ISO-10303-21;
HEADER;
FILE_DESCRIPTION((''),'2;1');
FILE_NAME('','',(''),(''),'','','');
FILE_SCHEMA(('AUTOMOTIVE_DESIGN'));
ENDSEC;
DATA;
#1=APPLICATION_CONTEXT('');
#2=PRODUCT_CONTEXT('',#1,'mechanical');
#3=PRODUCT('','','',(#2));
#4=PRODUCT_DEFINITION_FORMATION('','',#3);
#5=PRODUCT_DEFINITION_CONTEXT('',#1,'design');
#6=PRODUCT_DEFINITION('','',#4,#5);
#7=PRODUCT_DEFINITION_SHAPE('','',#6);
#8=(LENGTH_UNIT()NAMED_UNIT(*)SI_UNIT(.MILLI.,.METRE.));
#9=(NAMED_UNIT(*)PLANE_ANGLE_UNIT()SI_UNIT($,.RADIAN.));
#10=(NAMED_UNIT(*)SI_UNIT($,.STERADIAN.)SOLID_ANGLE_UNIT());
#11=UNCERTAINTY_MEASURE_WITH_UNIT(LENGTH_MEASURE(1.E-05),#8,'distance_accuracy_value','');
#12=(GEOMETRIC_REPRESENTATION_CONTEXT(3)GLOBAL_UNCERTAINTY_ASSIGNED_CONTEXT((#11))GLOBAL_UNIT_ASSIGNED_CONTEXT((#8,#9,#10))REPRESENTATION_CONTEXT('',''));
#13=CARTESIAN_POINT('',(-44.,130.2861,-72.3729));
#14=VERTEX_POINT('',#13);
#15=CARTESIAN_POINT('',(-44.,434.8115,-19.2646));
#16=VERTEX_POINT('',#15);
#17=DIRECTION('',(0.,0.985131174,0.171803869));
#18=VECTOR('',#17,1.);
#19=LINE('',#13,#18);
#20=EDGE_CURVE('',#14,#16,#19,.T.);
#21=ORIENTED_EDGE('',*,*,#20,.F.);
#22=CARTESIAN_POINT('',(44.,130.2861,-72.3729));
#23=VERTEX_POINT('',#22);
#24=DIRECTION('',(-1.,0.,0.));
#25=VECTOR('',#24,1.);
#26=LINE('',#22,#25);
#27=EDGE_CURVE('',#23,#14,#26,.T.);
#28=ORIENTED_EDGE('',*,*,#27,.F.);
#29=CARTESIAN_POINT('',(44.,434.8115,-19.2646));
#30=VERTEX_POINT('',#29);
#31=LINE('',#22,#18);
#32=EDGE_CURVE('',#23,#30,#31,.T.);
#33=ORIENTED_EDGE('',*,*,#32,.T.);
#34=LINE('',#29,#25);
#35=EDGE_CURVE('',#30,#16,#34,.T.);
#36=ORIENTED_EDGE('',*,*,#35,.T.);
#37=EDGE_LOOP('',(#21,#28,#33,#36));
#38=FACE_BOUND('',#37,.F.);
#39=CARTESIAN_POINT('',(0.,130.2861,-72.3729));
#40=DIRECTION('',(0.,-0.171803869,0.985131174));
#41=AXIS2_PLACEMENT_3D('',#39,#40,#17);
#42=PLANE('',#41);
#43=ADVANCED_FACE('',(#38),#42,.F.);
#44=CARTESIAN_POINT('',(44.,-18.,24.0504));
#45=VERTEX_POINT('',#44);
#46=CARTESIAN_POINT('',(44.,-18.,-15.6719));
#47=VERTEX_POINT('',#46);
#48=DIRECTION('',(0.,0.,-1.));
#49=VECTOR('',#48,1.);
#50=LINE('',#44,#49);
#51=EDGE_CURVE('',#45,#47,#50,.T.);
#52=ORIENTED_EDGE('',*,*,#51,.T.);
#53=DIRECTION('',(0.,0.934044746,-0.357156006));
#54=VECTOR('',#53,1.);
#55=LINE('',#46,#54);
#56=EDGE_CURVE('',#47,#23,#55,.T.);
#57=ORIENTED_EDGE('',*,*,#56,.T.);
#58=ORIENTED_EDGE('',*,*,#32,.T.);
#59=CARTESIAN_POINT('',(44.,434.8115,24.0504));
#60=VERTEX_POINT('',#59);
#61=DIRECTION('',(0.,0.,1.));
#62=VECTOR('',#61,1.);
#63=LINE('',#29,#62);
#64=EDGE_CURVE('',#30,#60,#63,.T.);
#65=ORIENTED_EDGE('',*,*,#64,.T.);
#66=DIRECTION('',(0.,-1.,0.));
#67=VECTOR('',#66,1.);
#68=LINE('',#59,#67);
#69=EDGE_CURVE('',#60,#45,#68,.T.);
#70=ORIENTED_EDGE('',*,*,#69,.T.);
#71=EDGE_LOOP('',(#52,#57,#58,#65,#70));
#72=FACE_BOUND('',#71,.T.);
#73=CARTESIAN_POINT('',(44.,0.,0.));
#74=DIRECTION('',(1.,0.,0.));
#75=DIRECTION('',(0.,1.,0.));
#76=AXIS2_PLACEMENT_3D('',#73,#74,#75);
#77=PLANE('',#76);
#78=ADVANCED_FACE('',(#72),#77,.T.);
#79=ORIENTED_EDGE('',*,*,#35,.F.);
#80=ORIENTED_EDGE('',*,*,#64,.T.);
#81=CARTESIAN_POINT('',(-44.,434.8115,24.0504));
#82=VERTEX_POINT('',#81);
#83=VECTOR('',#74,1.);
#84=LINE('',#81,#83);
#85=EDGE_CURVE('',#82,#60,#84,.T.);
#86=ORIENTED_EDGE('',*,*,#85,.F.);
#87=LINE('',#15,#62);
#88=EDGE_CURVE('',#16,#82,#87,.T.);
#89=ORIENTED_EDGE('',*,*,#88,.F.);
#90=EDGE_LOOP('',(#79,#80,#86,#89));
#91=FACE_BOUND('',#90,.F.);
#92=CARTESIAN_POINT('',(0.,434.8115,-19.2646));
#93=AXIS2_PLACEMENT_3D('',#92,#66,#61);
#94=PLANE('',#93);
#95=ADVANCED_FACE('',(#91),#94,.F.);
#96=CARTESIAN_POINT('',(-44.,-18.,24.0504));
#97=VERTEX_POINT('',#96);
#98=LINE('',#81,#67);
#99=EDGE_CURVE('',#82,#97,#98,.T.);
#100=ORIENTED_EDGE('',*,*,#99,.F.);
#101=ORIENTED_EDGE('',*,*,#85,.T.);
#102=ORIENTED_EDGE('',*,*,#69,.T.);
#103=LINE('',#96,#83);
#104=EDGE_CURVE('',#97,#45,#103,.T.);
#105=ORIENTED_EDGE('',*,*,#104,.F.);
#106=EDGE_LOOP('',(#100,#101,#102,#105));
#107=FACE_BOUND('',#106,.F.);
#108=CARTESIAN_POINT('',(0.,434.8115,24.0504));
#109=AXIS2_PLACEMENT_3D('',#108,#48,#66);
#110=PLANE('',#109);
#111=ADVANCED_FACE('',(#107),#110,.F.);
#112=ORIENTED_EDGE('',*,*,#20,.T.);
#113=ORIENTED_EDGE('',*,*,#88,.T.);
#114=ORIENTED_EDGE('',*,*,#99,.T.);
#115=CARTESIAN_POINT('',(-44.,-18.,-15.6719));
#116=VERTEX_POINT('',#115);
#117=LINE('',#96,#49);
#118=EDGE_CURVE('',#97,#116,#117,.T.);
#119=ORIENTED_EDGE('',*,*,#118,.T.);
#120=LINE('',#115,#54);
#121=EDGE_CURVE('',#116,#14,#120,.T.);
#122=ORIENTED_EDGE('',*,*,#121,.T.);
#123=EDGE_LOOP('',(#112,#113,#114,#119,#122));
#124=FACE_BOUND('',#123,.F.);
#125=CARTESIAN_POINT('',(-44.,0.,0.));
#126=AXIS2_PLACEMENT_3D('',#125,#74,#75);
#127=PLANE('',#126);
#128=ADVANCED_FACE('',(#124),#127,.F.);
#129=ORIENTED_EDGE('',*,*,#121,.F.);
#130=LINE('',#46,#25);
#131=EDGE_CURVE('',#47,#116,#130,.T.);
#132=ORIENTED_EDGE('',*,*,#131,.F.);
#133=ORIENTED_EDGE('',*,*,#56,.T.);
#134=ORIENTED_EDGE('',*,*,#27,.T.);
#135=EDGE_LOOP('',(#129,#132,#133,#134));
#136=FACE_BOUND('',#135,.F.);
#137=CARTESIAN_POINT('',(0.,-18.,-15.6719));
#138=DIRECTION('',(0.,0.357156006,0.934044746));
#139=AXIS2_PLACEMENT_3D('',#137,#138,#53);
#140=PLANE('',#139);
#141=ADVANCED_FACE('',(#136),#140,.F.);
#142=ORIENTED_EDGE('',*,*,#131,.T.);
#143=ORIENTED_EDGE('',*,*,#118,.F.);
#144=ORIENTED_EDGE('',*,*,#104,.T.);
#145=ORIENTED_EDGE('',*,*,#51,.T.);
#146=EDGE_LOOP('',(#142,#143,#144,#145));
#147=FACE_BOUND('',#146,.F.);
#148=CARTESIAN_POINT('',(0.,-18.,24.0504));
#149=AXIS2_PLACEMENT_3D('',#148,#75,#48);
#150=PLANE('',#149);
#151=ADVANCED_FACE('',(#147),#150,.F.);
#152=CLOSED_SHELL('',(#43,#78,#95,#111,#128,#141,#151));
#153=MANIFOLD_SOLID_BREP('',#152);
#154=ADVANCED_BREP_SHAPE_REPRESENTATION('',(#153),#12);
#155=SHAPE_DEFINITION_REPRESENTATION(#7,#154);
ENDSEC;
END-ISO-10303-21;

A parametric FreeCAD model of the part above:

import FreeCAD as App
import Part
import Sketcher
from FreeCAD import Vector

doc = App.newDocument("Part")
body = doc.addObject("PartDesign::Body", "Body")

# Sketch on YZ plane
sketch1 = body.newObject("Sketcher::SketchObject", "Sketch")
sketch1.AttachmentSupport = (doc.getObject("YZ_Plane"), [""])
sketch1.MapMode = "FlatFace"
sketch1.addGeometry([
    Part.LineSegment(Vector(435, -19, 0), Vector(435, 24, 0)),  # 0
    Part.LineSegment(Vector(435, 24, 0), Vector(-18, 24, 0)),  # 1
    Part.LineSegment(Vector(-18, 24, 0), Vector(-18, -16, 0)),  # 2
    Part.LineSegment(Vector(-18, -16, 0), Vector(130, -72, 0)),  # 3
    Part.LineSegment(Vector(130, -72, 0), Vector(435, -19, 0)),  # 4
], False)
sketch1.addConstraint([
    Sketcher.Constraint("Coincident", 0, 2, 1, 1),
    Sketcher.Constraint("Coincident", 1, 2, 2, 1),
    Sketcher.Constraint("Coincident", 2, 2, 3, 1),
    Sketcher.Constraint("Coincident", 3, 2, 4, 1),
    Sketcher.Constraint("Coincident", 4, 2, 0, 1),
    Sketcher.Constraint("Vertical", 0),
    Sketcher.Constraint("Horizontal", 1),
    Sketcher.Constraint("Vertical", 2),
    Sketcher.Constraint("DistanceY", 0, 1, 0, 2, 43.315),
    Sketcher.Constraint("DistanceX", 1, 2, 1, 1, 452.8115),
    Sketcher.Constraint("DistanceY", 2, 2, 2, 1, 39.7223),
    Sketcher.Constraint("DistanceX", 1, 2, -1, 1, 18.0),
    Sketcher.Constraint("DistanceY", 3, 2, 2, 2, 56.701),
    Sketcher.Constraint("DistanceY", -1, 1, 0, 2, 24.0504),
    Sketcher.Constraint("Distance", 3, 158.757),
])
pad1 = body.newObject("PartDesign::Pad", "Pad")
pad1.Profile = sketch1
pad1.Length = 88
pad1.Midplane = True

doc.recompute()
